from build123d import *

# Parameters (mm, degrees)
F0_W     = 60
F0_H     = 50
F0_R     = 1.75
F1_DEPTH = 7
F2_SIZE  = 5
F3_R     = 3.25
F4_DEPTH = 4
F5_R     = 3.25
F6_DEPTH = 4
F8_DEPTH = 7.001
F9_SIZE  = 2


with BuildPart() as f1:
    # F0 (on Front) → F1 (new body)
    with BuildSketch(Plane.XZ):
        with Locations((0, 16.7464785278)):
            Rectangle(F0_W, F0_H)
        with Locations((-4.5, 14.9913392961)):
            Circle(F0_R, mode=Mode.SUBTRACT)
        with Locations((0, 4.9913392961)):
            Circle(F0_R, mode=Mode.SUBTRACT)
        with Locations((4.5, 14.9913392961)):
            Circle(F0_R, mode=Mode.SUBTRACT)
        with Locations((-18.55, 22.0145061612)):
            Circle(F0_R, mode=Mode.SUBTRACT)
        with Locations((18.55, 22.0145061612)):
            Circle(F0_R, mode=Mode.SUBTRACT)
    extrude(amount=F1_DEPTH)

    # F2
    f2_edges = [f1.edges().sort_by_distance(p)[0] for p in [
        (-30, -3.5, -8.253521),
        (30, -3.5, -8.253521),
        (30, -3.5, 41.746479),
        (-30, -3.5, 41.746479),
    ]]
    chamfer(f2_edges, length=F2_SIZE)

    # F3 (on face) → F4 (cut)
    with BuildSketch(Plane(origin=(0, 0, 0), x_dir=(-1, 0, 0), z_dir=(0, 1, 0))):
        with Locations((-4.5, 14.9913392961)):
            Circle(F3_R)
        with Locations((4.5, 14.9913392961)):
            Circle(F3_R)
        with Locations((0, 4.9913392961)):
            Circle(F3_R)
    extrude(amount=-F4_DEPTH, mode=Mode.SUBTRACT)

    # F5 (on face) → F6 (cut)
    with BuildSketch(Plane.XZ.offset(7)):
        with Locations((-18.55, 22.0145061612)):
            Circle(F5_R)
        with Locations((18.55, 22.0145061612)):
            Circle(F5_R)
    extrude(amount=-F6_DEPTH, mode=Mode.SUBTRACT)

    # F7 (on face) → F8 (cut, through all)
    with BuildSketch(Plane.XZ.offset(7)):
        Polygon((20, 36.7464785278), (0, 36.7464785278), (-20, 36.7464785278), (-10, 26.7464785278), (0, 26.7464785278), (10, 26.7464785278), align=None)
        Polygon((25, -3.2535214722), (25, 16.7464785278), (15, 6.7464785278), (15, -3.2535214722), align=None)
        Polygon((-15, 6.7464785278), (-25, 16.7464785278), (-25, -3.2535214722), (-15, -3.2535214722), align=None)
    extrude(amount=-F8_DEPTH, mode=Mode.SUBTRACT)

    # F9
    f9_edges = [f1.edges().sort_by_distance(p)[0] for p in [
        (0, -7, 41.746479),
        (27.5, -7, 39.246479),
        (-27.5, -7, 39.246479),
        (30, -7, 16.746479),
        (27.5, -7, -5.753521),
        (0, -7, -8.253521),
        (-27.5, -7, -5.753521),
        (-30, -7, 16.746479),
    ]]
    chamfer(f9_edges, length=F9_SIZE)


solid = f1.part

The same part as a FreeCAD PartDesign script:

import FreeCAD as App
import Part
import Sketcher
from FreeCAD import Vector


def edges_at(feature, points):
    """Names of the edges that pass closest to the given points."""
    edges = feature.Shape.Edges
    near = lambda p: min(range(len(edges)), key=lambda i: edges[i].distToShape(Part.Vertex(*p))[0])
    return sorted({f"Edge{near(p) + 1}" for p in points})


def add_polygon(sketch, points):
    """Adds a closed chain of lines whose ends are joined by coincident constraints."""
    first, n = sketch.GeometryCount, len(points)
    for a, b in zip(points, points[1:] + points[:1]):
        sketch.addGeometry(Part.LineSegment(App.Vector(*a, 0), App.Vector(*b, 0)), False)
    for i in range(n):
        sketch.addConstraint(Sketcher.Constraint("Coincident", first + i, 2, first + (i + 1) % n, 1))

doc = App.newDocument("Part")
params = doc.addObject("Spreadsheet::Sheet", "Params")
for row, (alias, value) in enumerate([
    ("sketch1_diameter", "3.5 mm"),
    ("sketch1_width", "60 mm"),
    ("sketch1_height", "50 mm"),
    ("pad1_length", "7 mm"),
    ("chamfer_size", "5 mm"),
    ("sketch2_diameter", "6.5 mm"),
    ("pocket1_length", "4 mm"),
    ("sketch3_diameter", "6.5 mm"),
    ("pocket2_length", "4 mm"),
    ("sketch4_width", "40 mm"),
    ("chamfer2_size", "2 mm"),
], start=1):
    params.set(f"A{row}", alias)
    params.set(f"B{row}", "=" + value)
    params.setAlias(f"B{row}", alias)

body = doc.addObject("PartDesign::Body", "Body")

# Sketch on XZ plane
sketch1 = body.newObject("Sketcher::SketchObject", "Sketch")
sketch1.AttachmentSupport = (doc.getObject("XZ_Plane"), [""])
sketch1.MapMode = "FlatFace"
add_polygon(sketch1, [(-30, 41.7), (-30, -8.3), (30, -8.3), (30, 41.7)])  # lines 0-3
sketch1.addGeometry(Part.Circle(Vector(0, 5, 0), Vector(0, 0, 1), 1.8), False)  # 4
sketch1.addGeometry(Part.Circle(Vector(-4.5, 15, 0), Vector(0, 0, 1), 1.8), False)  # 5
sketch1.addGeometry(Part.Circle(Vector(-18.6, 22, 0), Vector(0, 0, 1), 1.8), False)  # 6
sketch1.addGeometry(Part.Circle(Vector(4.5, 15, 0), Vector(0, 0, 1), 1.8), False)  # 7
sketch1.addGeometry(Part.Circle(Vector(18.6, 22, 0), Vector(0, 0, 1), 1.8), False)  # 8
sketch1.addConstraint([
    Sketcher.Constraint("Vertical", 0),
    Sketcher.Constraint("Horizontal", 1),
    Sketcher.Constraint("Vertical", 2),
    Sketcher.Constraint("Horizontal", 3),
    Sketcher.Constraint("Equal", 4, 5),
    Sketcher.Constraint("Equal", 5, 6),
    Sketcher.Constraint("Equal", 6, 7),
    Sketcher.Constraint("Equal", 7, 8),
    Sketcher.Constraint("Symmetric", 5, 3, 7, 3, -2),
    Sketcher.Constraint("Symmetric", 6, 3, 8, 3, -2),
    Sketcher.Constraint("PointOnObject", 4, 3, -2),
    Sketcher.Constraint("Diameter", 4, 3.5),
    Sketcher.Constraint("DistanceX", 1, 1, 1, 2, 60.0),
    Sketcher.Constraint("DistanceY", 0, 2, 0, 1, 50.0),
    Sketcher.Constraint("DistanceX", 0, 2, -1, 1, 30.0),
    Sketcher.Constraint("DistanceY", 4, 3, 5, 3, 10.0),
    Sketcher.Constraint("DistanceX", 5, 3, 7, 3, 9.0),
    Sketcher.Constraint("DistanceX", 6, 3, 8, 3, 37.1),
    Sketcher.Constraint("DistanceY", -1, 1, 4, 3, 4.991339),
    Sketcher.Constraint("DistanceY", 0, 2, -1, 1, 8.253521),
    Sketcher.Constraint("DistanceY", -1, 1, 6, 3, 22.014506),
])
sketch1.setExpression("Constraints[15]", "Params.sketch1_diameter")
sketch1.setExpression("Constraints[16]", "Params.sketch1_width")
sketch1.setExpression("Constraints[17]", "Params.sketch1_height")
pad1 = body.newObject("PartDesign::Pad", "Pad")
pad1.Profile = sketch1
pad1.setExpression("Length", "Params.pad1_length")
doc.recompute()

chamfer = body.newObject("PartDesign::Chamfer", "Chamfer")
chamfer.Base = (pad1, edges_at(pad1, [
    (-30, -3.5, -8.254),
    (30, -3.5, -8.254),
    (30, -3.5, 41.746),
    (-30, -3.5, 41.746),
]))
chamfer.setExpression("Size", "Params.chamfer_size")

# Sketch on XZ plane
sketch2 = body.newObject("Sketcher::SketchObject", "Sketch001")
sketch2.AttachmentSupport = (doc.getObject("XZ_Plane"), [""])
sketch2.MapMode = "FlatFace"
sketch2.addGeometry([
    Part.Circle(Vector(4.5, 15, 0), Vector(0, 0, 1), 3.2),
    Part.Circle(Vector(-4.5, 15, 0), Vector(0, 0, 1), 3.2),
    Part.Circle(Vector(0, 5, 0), Vector(0, 0, 1), 3.2),
], False)
sketch2.addConstraint([
    Sketcher.Constraint("Equal", 0, 1),
    Sketcher.Constraint("Equal", 1, 2),
    Sketcher.Constraint("Symmetric", 0, 3, 1, 3, -2),
    Sketcher.Constraint("PointOnObject", 2, 3, -2),
    Sketcher.Constraint("Diameter", 0, 6.5),
    Sketcher.Constraint("DistanceX", 1, 3, 0, 3, 9.0),
    Sketcher.Constraint("DistanceY", 2, 3, 0, 3, 10.0),
    Sketcher.Constraint("DistanceY", -1, 1, 0, 3, 14.991339),
])
sketch2.setExpression("Constraints[4]", "Params.sketch2_diameter")
pocket1 = body.newObject("PartDesign::Pocket", "Pocket")
pocket1.Profile = sketch2
pocket1.setExpression("Length", "Params.pocket1_length")
pocket1.Reversed = True

# Sketch on XZ plane
sketch3 = body.newObject("Sketcher::SketchObject", "Sketch002")
sketch3.AttachmentSupport = (doc.getObject("XZ_Plane"), [""])
sketch3.MapMode = "FlatFace"
sketch3.AttachmentOffset = App.Placement(Vector(0, 0, 7), App.Rotation())
sketch3.addGeometry([
    Part.Circle(Vector(-18.6, 22, 0), Vector(0, 0, 1), 3.2),
    Part.Circle(Vector(18.6, 22, 0), Vector(0, 0, 1), 3.2),
], False)
sketch3.addConstraint([
    Sketcher.Constraint("Equal", 0, 1),
    Sketcher.Constraint("Symmetric", 0, 3, 1, 3, -2),
    Sketcher.Constraint("Diameter", 0, 6.5),
    Sketcher.Constraint("DistanceX", 0, 3, 1, 3, 37.1),
    Sketcher.Constraint("DistanceY", -1, 1, 0, 3, 22.014506),
])
sketch3.setExpression("Constraints[2]", "Params.sketch3_diameter")
pocket2 = body.newObject("PartDesign::Pocket", "Pocket001")
pocket2.Profile = sketch3
pocket2.setExpression("Length", "Params.pocket2_length")

# Sketch on XZ plane
sketch4 = body.newObject("Sketcher::SketchObject", "Sketch003")
sketch4.AttachmentSupport = (doc.getObject("XZ_Plane"), [""])
sketch4.MapMode = "FlatFace"
sketch4.AttachmentOffset = App.Placement(Vector(0, 0, 7), App.Rotation())
add_polygon(sketch4, [(20, 37), (-20, 37), (-10, 27), (10, 27)])  # lines 0-3
add_polygon(sketch4, [(25, -3), (25, 17), (15, 7), (15, -3)])  # lines 4-7
add_polygon(sketch4, [(-15, 7), (-25, 17), (-25, -3), (-15, -3)])  # lines 8-11
sketch4.addConstraint([
    Sketcher.Constraint("Horizontal", 0),
    Sketcher.Constraint("Horizontal", 2),
    Sketcher.Constraint("Vertical", 4),
    Sketcher.Constraint("Vertical", 6),
    Sketcher.Constraint("Horizontal", 7),
    Sketcher.Constraint("Vertical", 9),
    Sketcher.Constraint("Horizontal", 10),
    Sketcher.Constraint("Vertical", 11),
    Sketcher.Constraint("Symmetric", 4, 2, 8, 2, -2),
    Sketcher.Constraint("Symmetric", 6, 2, 10, 2, -2),
    Sketcher.Constraint("Perpendicular", 1, 3),
    Sketcher.Constraint("Parallel", 3, 5),
    Sketcher.Constraint("Perpendicular", 5, 8),
    Sketcher.Constraint("Horizontal", 5, 2, 11, 2),
    Sketcher.Constraint("Equal", 2, 4),
    Sketcher.Constraint("Equal", 10, 6),
    Sketcher.Constraint("Equal", 3, 5),
    Sketcher.Constraint("DistanceX", 0, 2, 0, 1, 40.0),
    Sketcher.Constraint("DistanceX", 0, 2, -1, 1, 20.0),
    Sketcher.Constraint("DistanceX", -1, 1, 4, 2, 25.0),
    Sketcher.Constraint("DistanceY", 4, 2, 2, 2, 10.0),
    Sketcher.Constraint("DistanceY", -1, 1, 0, 2, 36.746479),
])
sketch4.setExpression("Constraints[29]", "Params.sketch4_width")
pocket3 = body.newObject("PartDesign::Pocket", "Pocket002")
pocket3.Profile = sketch4
pocket3.Type = "ThroughAll"
doc.recompute()

chamfer2 = body.newObject("PartDesign::Chamfer", "Chamfer001")
chamfer2.Base = (pocket3, edges_at(pocket3, [
    (0, -7, 41.746),
    (27.5, -7, 39.246),
    (-27.5, -7, 39.246),
    (30, -7, 16.746),
    (27.5, -7, -5.754),
    (0, -7, -8.254),
    (-27.5, -7, -5.754),
    (-30, -7, 16.746),
]))
chamfer2.setExpression("Size", "Params.chamfer2_size")

doc.recompute()
